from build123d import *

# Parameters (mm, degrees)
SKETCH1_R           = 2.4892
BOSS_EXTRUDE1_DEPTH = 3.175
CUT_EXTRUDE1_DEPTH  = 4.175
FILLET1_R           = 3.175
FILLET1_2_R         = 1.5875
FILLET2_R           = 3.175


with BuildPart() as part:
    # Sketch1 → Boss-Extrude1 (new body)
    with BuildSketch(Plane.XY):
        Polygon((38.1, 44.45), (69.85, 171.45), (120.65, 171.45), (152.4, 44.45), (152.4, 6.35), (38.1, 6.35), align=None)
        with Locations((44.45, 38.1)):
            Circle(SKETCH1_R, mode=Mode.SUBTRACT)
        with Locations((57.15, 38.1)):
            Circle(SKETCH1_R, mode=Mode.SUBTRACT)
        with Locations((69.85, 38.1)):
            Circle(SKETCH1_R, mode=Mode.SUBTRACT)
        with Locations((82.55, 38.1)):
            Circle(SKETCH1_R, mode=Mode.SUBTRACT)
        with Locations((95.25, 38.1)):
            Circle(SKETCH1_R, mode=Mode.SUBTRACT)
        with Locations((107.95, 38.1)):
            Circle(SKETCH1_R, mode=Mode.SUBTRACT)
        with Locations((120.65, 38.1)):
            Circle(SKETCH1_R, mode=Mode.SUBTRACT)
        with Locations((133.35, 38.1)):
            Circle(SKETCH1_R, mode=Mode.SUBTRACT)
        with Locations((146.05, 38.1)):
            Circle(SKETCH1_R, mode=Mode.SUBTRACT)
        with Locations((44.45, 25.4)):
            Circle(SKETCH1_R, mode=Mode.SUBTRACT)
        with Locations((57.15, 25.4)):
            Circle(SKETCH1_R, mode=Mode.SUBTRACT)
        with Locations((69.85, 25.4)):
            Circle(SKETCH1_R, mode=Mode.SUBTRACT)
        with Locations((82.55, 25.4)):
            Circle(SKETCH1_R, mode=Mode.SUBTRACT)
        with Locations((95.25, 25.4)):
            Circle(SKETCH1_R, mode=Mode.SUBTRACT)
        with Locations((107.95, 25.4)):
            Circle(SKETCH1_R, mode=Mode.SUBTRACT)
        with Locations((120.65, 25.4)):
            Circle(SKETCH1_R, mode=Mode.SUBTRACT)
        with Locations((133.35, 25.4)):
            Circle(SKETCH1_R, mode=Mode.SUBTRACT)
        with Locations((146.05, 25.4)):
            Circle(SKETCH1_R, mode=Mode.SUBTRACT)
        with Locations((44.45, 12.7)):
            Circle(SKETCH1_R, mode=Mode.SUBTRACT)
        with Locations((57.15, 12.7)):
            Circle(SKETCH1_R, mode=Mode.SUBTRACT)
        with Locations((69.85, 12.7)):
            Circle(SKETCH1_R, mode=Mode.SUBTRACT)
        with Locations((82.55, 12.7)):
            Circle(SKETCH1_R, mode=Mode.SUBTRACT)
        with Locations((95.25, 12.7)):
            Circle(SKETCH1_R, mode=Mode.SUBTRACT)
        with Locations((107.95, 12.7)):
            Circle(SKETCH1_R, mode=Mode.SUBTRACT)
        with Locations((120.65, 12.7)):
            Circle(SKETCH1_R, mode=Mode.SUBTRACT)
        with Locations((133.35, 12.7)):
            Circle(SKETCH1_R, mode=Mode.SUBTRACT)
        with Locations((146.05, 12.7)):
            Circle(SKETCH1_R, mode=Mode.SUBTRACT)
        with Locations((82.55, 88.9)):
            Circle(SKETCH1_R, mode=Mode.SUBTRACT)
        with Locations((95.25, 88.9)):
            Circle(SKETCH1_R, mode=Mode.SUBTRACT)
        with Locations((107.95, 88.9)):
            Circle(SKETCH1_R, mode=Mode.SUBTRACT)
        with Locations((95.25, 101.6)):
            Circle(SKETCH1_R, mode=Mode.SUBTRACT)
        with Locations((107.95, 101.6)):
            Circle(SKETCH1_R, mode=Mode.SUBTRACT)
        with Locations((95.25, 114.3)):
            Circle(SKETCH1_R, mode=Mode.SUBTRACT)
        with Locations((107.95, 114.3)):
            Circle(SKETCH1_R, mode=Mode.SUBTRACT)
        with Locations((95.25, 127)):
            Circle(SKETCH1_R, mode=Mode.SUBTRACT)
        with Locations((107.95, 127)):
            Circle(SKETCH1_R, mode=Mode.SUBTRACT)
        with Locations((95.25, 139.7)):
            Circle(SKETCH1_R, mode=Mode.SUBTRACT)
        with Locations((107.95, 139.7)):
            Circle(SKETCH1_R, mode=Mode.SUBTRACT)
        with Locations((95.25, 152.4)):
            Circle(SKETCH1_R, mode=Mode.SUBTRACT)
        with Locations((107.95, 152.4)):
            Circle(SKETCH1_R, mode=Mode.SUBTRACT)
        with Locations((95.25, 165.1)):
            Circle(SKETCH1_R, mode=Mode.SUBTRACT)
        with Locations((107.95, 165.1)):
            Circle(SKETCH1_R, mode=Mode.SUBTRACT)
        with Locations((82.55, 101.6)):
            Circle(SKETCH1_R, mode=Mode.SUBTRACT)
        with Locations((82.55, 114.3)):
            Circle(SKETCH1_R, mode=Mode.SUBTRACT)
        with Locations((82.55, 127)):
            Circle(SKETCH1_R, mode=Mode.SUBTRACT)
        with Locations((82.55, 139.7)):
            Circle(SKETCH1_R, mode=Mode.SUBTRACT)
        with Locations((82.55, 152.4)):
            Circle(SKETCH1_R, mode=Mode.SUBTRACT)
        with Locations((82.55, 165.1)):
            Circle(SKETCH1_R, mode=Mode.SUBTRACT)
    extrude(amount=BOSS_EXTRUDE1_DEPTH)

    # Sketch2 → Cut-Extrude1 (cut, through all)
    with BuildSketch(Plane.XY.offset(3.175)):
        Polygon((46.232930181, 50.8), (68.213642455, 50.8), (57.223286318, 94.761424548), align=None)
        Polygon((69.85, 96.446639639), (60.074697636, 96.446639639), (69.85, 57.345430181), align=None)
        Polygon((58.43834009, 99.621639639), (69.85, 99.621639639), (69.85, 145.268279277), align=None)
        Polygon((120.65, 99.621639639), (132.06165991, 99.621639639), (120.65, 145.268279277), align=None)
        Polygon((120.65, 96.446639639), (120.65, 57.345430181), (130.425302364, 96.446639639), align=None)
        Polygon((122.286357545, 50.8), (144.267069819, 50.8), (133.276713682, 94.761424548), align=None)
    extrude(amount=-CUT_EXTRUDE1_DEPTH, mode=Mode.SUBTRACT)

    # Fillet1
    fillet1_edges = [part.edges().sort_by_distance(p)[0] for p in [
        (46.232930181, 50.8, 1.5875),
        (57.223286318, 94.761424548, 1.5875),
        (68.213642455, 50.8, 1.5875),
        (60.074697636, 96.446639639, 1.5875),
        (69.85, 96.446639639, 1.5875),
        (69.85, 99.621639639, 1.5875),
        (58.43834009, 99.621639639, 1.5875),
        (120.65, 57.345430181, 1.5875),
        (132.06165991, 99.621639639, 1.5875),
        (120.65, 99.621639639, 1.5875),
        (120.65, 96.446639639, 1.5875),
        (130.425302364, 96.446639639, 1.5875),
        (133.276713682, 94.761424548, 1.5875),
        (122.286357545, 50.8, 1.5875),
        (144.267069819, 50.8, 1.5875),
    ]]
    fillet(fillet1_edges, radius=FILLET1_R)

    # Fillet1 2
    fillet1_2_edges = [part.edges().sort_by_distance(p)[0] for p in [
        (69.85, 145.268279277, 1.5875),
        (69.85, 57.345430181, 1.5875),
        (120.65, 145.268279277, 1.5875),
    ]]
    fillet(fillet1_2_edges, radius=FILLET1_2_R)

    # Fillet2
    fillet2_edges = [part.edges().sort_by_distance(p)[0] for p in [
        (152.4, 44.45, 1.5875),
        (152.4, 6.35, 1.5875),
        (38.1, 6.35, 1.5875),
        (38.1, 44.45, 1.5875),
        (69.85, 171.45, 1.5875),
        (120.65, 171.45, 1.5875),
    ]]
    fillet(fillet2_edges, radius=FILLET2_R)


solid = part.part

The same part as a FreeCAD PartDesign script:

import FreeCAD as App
import Part
import Sketcher
Q = App.Units.Quantity


def edges_at(feature, points):
    """Names of the edges that pass closest to the given points."""
    edges = feature.Shape.Edges
    near = lambda p: min(range(len(edges)), key=lambda i: edges[i].distToShape(Part.Vertex(*p))[0])
    return sorted({f"Edge{near(p) + 1}" for p in points})

doc = App.newDocument("Part")
params = doc.addObject("Spreadsheet::Sheet", "Params")
for row, (alias, value) in enumerate([
    ("sketch1_width", "2 in"),
    ("sketch1_diameter", "0.196 in"),
    ("sketch1_width2", "4.5 in"),
    ("sketch1_height", "1.5 in"),
    ("pad1_length", "0.125 in"),
    ("fillet_radius", "0.125 in"),
    ("fillet2_radius", "0.0625 in"),
    ("fillet3_radius", "0.125 in"),
], start=1):
    params.set(f"A{row}", alias)
    params.set(f"B{row}", "=" + value)
    params.setAlias(f"B{row}", alias)

body = doc.addObject("PartDesign::Body", "Body")

# Sketch on XY plane
sketch1 = doc.addObject("Sketcher::SketchObject", "Sketch")
body.addObject(sketch1)
sketch1.AttachmentSupport = (doc.XY_Plane, [""])
sketch1.MapMode = "FlatFace"
sketch1.addGeometry([
    Part.LineSegment(App.Vector(69.85, 171.45, 0), App.Vector(38.1, 44.45, 0)),  # 0
    Part.LineSegment(App.Vector(38.1, 44.45, 0), App.Vector(38.1, 6.35, 0)),  # 1
    Part.LineSegment(App.Vector(38.1, 6.35, 0), App.Vector(152.4, 6.35, 0)),  # 2
    Part.LineSegment(App.Vector(152.4, 6.35, 0), App.Vector(152.4, 44.45, 0)),  # 3
    Part.LineSegment(App.Vector(152.4, 44.45, 0), App.Vector(120.65, 171.45, 0)),  # 4
    Part.LineSegment(App.Vector(120.65, 171.45, 0), App.Vector(69.85, 171.45, 0)),  # 5
    Part.Circle(App.Vector(146.05, 12.7, 0), App.Vector(0, 0, 1), 2.4892),  # 6
    Part.Circle(App.Vector(146.05, 25.4, 0), App.Vector(0, 0, 1), 2.4892),  # 7
    Part.Circle(App.Vector(133.35, 12.7, 0), App.Vector(0, 0, 1), 2.4892),  # 8
    Part.Circle(App.Vector(133.35, 25.4, 0), App.Vector(0, 0, 1), 2.4892),  # 9
    Part.Circle(App.Vector(146.05, 38.1, 0), App.Vector(0, 0, 1), 2.4892),  # 10
    Part.Circle(App.Vector(133.35, 38.1, 0), App.Vector(0, 0, 1), 2.4892),  # 11
    Part.Circle(App.Vector(120.65, 12.7, 0), App.Vector(0, 0, 1), 2.4892),  # 12
    Part.Circle(App.Vector(120.65, 25.4, 0), App.Vector(0, 0, 1), 2.4892),  # 13
    Part.Circle(App.Vector(107.95, 12.7, 0), App.Vector(0, 0, 1), 2.4892),  # 14
    Part.Circle(App.Vector(107.95, 25.4, 0), App.Vector(0, 0, 1), 2.4892),  # 15
    Part.Circle(App.Vector(120.65, 38.1, 0), App.Vector(0, 0, 1), 2.4892),  # 16
    Part.Circle(App.Vector(107.95, 38.1, 0), App.Vector(0, 0, 1), 2.4892),  # 17
    Part.Circle(App.Vector(95.25, 12.7, 0), App.Vector(0, 0, 1), 2.4892),  # 18
    Part.Circle(App.Vector(82.55, 12.7, 0), App.Vector(0, 0, 1), 2.4892),  # 19
    Part.Circle(App.Vector(95.25, 25.4, 0), App.Vector(0, 0, 1), 2.4892),  # 20
    Part.Circle(App.Vector(82.55, 25.4, 0), App.Vector(0, 0, 1), 2.4892),  # 21
    Part.Circle(App.Vector(69.85, 12.7, 0), App.Vector(0, 0, 1), 2.4892),  # 22
    Part.Circle(App.Vector(69.85, 25.4, 0), App.Vector(0, 0, 1), 2.4892),  # 23
    Part.Circle(App.Vector(95.25, 38.1, 0), App.Vector(0, 0, 1), 2.4892),  # 24
    Part.Circle(App.Vector(82.55, 38.1, 0), App.Vector(0, 0, 1), 2.4892),  # 25
    Part.Circle(App.Vector(69.85, 38.1, 0), App.Vector(0, 0, 1), 2.4892),  # 26
    Part.Circle(App.Vector(57.15, 12.7, 0), App.Vector(0, 0, 1), 2.4892),  # 27
    Part.Circle(App.Vector(57.15, 25.4, 0), App.Vector(0, 0, 1), 2.4892),  # 28
    Part.Circle(App.Vector(44.45, 12.7, 0), App.Vector(0, 0, 1), 2.4892),  # 29
    Part.Circle(App.Vector(44.45, 25.4, 0), App.Vector(0, 0, 1), 2.4892),  # 30
    Part.Circle(App.Vector(57.15, 38.1, 0), App.Vector(0, 0, 1), 2.4892),  # 31
    Part.Circle(App.Vector(44.45, 38.1, 0), App.Vector(0, 0, 1), 2.4892),  # 32
    Part.Circle(App.Vector(107.95, 88.9, 0), App.Vector(0, 0, 1), 2.4892),  # 33
    Part.Circle(App.Vector(107.95, 101.6, 0), App.Vector(0, 0, 1), 2.4892),  # 34
    Part.Circle(App.Vector(107.95, 114.3, 0), App.Vector(0, 0, 1), 2.4892),  # 35
    Part.Circle(App.Vector(107.95, 127, 0), App.Vector(0, 0, 1), 2.4892),  # 36
    Part.Circle(App.Vector(107.95, 139.7, 0), App.Vector(0, 0, 1), 2.4892),  # 37
    Part.Circle(App.Vector(107.95, 152.4, 0), App.Vector(0, 0, 1), 2.4892),  # 38
    Part.Circle(App.Vector(107.95, 165.1, 0), App.Vector(0, 0, 1), 2.4892),  # 39
    Part.Circle(App.Vector(95.25, 88.9, 0), App.Vector(0, 0, 1), 2.4892),  # 40
    Part.Circle(App.Vector(82.55, 88.9, 0), App.Vector(0, 0, 1), 2.4892),  # 41
    Part.Circle(App.Vector(95.25, 101.6, 0), App.Vector(0, 0, 1), 2.4892),  # 42
    Part.Circle(App.Vector(82.55, 101.6, 0), App.Vector(0, 0, 1), 2.4892),  # 43
    Part.Circle(App.Vector(95.25, 114.3, 0), App.Vector(0, 0, 1), 2.4892),  # 44
    Part.Circle(App.Vector(82.55, 114.3, 0), App.Vector(0, 0, 1), 2.4892),  # 45
    Part.Circle(App.Vector(95.25, 127, 0), App.Vector(0, 0, 1), 2.4892),  # 46
    Part.Circle(App.Vector(82.55, 127, 0), App.Vector(0, 0, 1), 2.4892),  # 47
    Part.Circle(App.Vector(95.25, 139.7, 0), App.Vector(0, 0, 1), 2.4892),  # 48
    Part.Circle(App.Vector(82.55, 139.7, 0), App.Vector(0, 0, 1), 2.4892),  # 49
    Part.Circle(App.Vector(95.25, 152.4, 0), App.Vector(0, 0, 1), 2.4892),  # 50
    Part.Circle(App.Vector(82.55, 152.4, 0), App.Vector(0, 0, 1), 2.4892),  # 51
    Part.Circle(App.Vector(95.25, 165.1, 0), App.Vector(0, 0, 1), 2.4892),  # 52
    Part.Circle(App.Vector(82.55, 165.1, 0), App.Vector(0, 0, 1), 2.4892),  # 53
], False)
sketch1.addConstraint([
    Sketcher.Constraint("Coincident", 0, 2, 1, 1),
    Sketcher.Constraint("Coincident", 1, 2, 2, 1),
    Sketcher.Constraint("Coincident", 2, 2, 3, 1),
    Sketcher.Constraint("Coincident", 3, 2, 4, 1),
    Sketcher.Constraint("Coincident", 4, 2, 5, 1),
    Sketcher.Constraint("Coincident", 5, 2, 0, 1),
    Sketcher.Constraint("Vertical", 1),
    Sketcher.Constraint("Horizontal", 2),
    Sketcher.Constraint("Vertical", 3),
    Sketcher.Constraint("Horizontal", 5),
    Sketcher.Constraint("Equal", 6, 7),
    Sketcher.Constraint("Equal", 7, 8),
    Sketcher.Constraint("Equal", 8, 9),
    Sketcher.Constraint("Equal", 9, 10),
    Sketcher.Constraint("Equal", 10, 11),
    Sketcher.Constraint("Equal", 11, 12),
    Sketcher.Constraint("Equal", 12, 13),
    Sketcher.Constraint("Equal", 13, 14),
    Sketcher.Constraint("Equal", 14, 15),
    Sketcher.Constraint("Equal", 15, 16),
    Sketcher.Constraint("Equal", 16, 17),
    Sketcher.Constraint("Equal", 17, 18),
    Sketcher.Constraint("Equal", 18, 19),
    Sketcher.Constraint("Equal", 19, 20),
    Sketcher.Constraint("Equal", 20, 21),
    Sketcher.Constraint("Equal", 21, 22),
    Sketcher.Constraint("Equal", 22, 23),
    Sketcher.Constraint("Equal", 23, 24),
    Sketcher.Constraint("Equal", 24, 25),
    Sketcher.Constraint("Equal", 25, 26),
    Sketcher.Constraint("Equal", 26, 27),
    Sketcher.Constraint("Equal", 27, 28),
    Sketcher.Constraint("Equal", 28, 29),
    Sketcher.Constraint("Equal", 29, 30),
    Sketcher.Constraint("Equal", 30, 31),
    Sketcher.Constraint("Equal", 31, 32),
    Sketcher.Constraint("Equal", 32, 33),
    Sketcher.Constraint("Equal", 33, 34),
    Sketcher.Constraint("Equal", 34, 35),
    Sketcher.Constraint("Equal", 35, 36),
    Sketcher.Constraint("Equal", 36, 37),
    Sketcher.Constraint("Equal", 37, 38),
    Sketcher.Constraint("Equal", 38, 39),
    Sketcher.Constraint("Equal", 39, 40),
    Sketcher.Constraint("Equal", 40, 41),
    Sketcher.Constraint("Equal", 41, 42),
    Sketcher.Constraint("Equal", 42, 43),
    Sketcher.Constraint("Equal", 43, 44),
    Sketcher.Constraint("Equal", 44, 45),
    Sketcher.Constraint("Equal", 45, 46),
    Sketcher.Constraint("Equal", 46, 47),
    Sketcher.Constraint("Equal", 47, 48),
    Sketcher.Constraint("Equal", 48, 49),
    Sketcher.Constraint("Equal", 49, 50),
    Sketcher.Constraint("Equal", 50, 51),
    Sketcher.Constraint("Equal", 51, 52),
    Sketcher.Constraint("Equal", 52, 53),
    Sketcher.Constraint("Horizontal", 6, 3, 8, 3),
    Sketcher.Constraint("Horizontal", 7, 3, 9, 3),
    Sketcher.Constraint("Horizontal", 10, 3, 11, 3),
    Sketcher.Constraint("Horizontal", 8, 3, 12, 3),
    Sketcher.Constraint("Horizontal", 9, 3, 13, 3),
    Sketcher.Constraint("Horizontal", 12, 3, 14, 3),
    Sketcher.Constraint("Horizontal", 13, 3, 15, 3),
    Sketcher.Constraint("Horizontal", 11, 3, 16, 3),
    Sketcher.Constraint("Horizontal", 16, 3, 17, 3),
    Sketcher.Constraint("Horizontal", 14, 3, 18, 3),
    Sketcher.Constraint("Horizontal", 18, 3, 19, 3),
    Sketcher.Constraint("Horizontal", 15, 3, 20, 3),
    Sketcher.Constraint("Horizontal", 20, 3, 21, 3),
    Sketcher.Constraint("Horizontal", 19, 3, 22, 3),
    Sketcher.Constraint("Horizontal", 21, 3, 23, 3),
    Sketcher.Constraint("Horizontal", 17, 3, 24, 3),
    Sketcher.Constraint("Horizontal", 24, 3, 25, 3),
    Sketcher.Constraint("Horizontal", 25, 3, 26, 3),
    Sketcher.Constraint("Horizontal", 22, 3, 27, 3),
    Sketcher.Constraint("Horizontal", 23, 3, 28, 3),
    Sketcher.Constraint("Horizontal", 27, 3, 29, 3),
    Sketcher.Constraint("Horizontal", 28, 3, 30, 3),
    Sketcher.Constraint("Horizontal", 26, 3, 31, 3),
    Sketcher.Constraint("Horizontal", 31, 3, 32, 3),
    Sketcher.Constraint("Horizontal", 33, 3, 40, 3),
    Sketcher.Constraint("Horizontal", 40, 3, 41, 3),
    Sketcher.Constraint("Horizontal", 34, 3, 42, 3),
    Sketcher.Constraint("Horizontal", 42, 3, 43, 3),
    Sketcher.Constraint("Horizontal", 35, 3, 44, 3),
    Sketcher.Constraint("Horizontal", 44, 3, 45, 3),
    Sketcher.Constraint("Horizontal", 36, 3, 46, 3),
    Sketcher.Constraint("Horizontal", 46, 3, 47, 3),
    Sketcher.Constraint("Horizontal", 37, 3, 48, 3),
    Sketcher.Constraint("Horizontal", 48, 3, 49, 3),
    Sketcher.Constraint("Horizontal", 38, 3, 50, 3),
    Sketcher.Constraint("Horizontal", 50, 3, 51, 3),
    Sketcher.Constraint("Horizontal", 39, 3, 52, 3),
    Sketcher.Constraint("Horizontal", 52, 3, 53, 3),
    Sketcher.Constraint("Horizontal", 0, 2, 3, 2),
    Sketcher.Constraint("Vertical", 6, 3, 7, 3),
    Sketcher.Constraint("Vertical", 8, 3, 9, 3),
    Sketcher.Constraint("Vertical", 7, 3, 10, 3),
    Sketcher.Constraint("Vertical", 9, 3, 11, 3),
    Sketcher.Constraint("Vertical", 12, 3, 13, 3),
    Sketcher.Constraint("Vertical", 14, 3, 15, 3),
    Sketcher.Constraint("Vertical", 13, 3, 16, 3),
    Sketcher.Constraint("Vertical", 15, 3, 17, 3),
    Sketcher.Constraint("Vertical", 18, 3, 20, 3),
    Sketcher.Constraint("Vertical", 19, 3, 21, 3),
    Sketcher.Constraint("Vertical", 22, 3, 23, 3),
    Sketcher.Constraint("Vertical", 20, 3, 24, 3),
    Sketcher.Constraint("Vertical", 21, 3, 25, 3),
    Sketcher.Constraint("Vertical", 23, 3, 26, 3),
    Sketcher.Constraint("Vertical", 27, 3, 28, 3),
    Sketcher.Constraint("Vertical", 29, 3, 30, 3),
    Sketcher.Constraint("Vertical", 28, 3, 31, 3),
    Sketcher.Constraint("Vertical", 30, 3, 32, 3),
    Sketcher.Constraint("Vertical", 17, 3, 33, 3),
    Sketcher.Constraint("Vertical", 33, 3, 34, 3),
    Sketcher.Constraint("Vertical", 34, 3, 35, 3),
    Sketcher.Constraint("Vertical", 35, 3, 36, 3),
    Sketcher.Constraint("Vertical", 36, 3, 37, 3),
    Sketcher.Constraint("Vertical", 37, 3, 38, 3),
    Sketcher.Constraint("Vertical", 38, 3, 39, 3),
    Sketcher.Constraint("Vertical", 24, 3, 40, 3),
    Sketcher.Constraint("Vertical", 25, 3, 41, 3),
    Sketcher.Constraint("Vertical", 40, 3, 42, 3),
    Sketcher.Constraint("Vertical", 41, 3, 43, 3),
    Sketcher.Constraint("Vertical", 42, 3, 44, 3),
    Sketcher.Constraint("Vertical", 43, 3, 45, 3),
    Sketcher.Constraint("Vertical", 44, 3, 46, 3),
    Sketcher.Constraint("Vertical", 45, 3, 47, 3),
    Sketcher.Constraint("Vertical", 46, 3, 48, 3),
    Sketcher.Constraint("Vertical", 47, 3, 49, 3),
    Sketcher.Constraint("Vertical", 48, 3, 50, 3),
    Sketcher.Constraint("Vertical", 49, 3, 51, 3),
    Sketcher.Constraint("Vertical", 50, 3, 52, 3),
    Sketcher.Constraint("Vertical", 51, 3, 53, 3),
    Sketcher.Constraint("Vertical", 16, 3, 4, 2),
    Sketcher.Constraint("Vertical", 26, 3, 5, 2),
    Sketcher.Constraint("Equal", 0, 4),
    Sketcher.Constraint("DistanceX", 5, 2, 5, 1, Q("2 in")),
    Sketcher.Constraint("Diameter", 6, Q("0.196 in")),
    Sketcher.Constraint("DistanceX", 2, 1, 2, 2, Q("4.5 in")),
    Sketcher.Constraint("DistanceY", 1, 2, 1, 1, Q("1.5 in")),
    Sketcher.Constraint("DistanceY", -1, 1, 7, 3, Q("1 in")),
    Sketcher.Constraint("DistanceY", -1, 1, 34, 3, Q("4 in")),
    Sketcher.Constraint("DistanceY", -1, 1, 36, 3, Q("5 in")),
    Sketcher.Constraint("DistanceY", -1, 1, 38, 3, Q("6 in")),
    Sketcher.Constraint("DistanceX", -1, 1, 2, 2, Q("6 in")),
    Sketcher.Constraint("DistanceY", 6, 3, 10, 3, Q("1 in")),
    Sketcher.Constraint("DistanceX", 12, 3, 6, 3, Q("1 in")),
    Sketcher.Constraint("DistanceX", 14, 3, 8, 3, Q("1 in")),
    Sketcher.Constraint("DistanceX", 18, 3, 12, 3, Q("1 in")),
    Sketcher.Constraint("DistanceX", 19, 3, 14, 3, Q("1 in")),
    Sketcher.Constraint("DistanceX", 27, 3, 19, 3, Q("1 in")),
    Sketcher.Constraint("DistanceX", 29, 3, 22, 3, Q("1 in")),
    Sketcher.Constraint("DistanceY", 17, 3, 33, 3, Q("2 in")),
    Sketcher.Constraint("DistanceY", 33, 3, 35, 3, Q("1 in")),
    Sketcher.Constraint("DistanceY", 35, 3, 37, 3, Q("1 in")),
    Sketcher.Constraint("DistanceY", 37, 3, 39, 3, Q("1 in")),
    Sketcher.Constraint("DistanceY", -1, 1, 6, 3, Q("0.5 in")),
    Sketcher.Constraint("DistanceX", 8, 3, 6, 3, Q("0.5 in")),
    Sketcher.Constraint("DistanceY", -1, 1, 0, 2, Q("1.75 in")),
    Sketcher.Constraint("DistanceY", -1, 1, 4, 2, Q("6.75 in")),
])
sketch1.setExpression("Constraints[138]", "Params.sketch1_width")
sketch1.setExpression("Constraints[139]", "Params.sketch1_diameter")
sketch1.setExpression("Constraints[140]", "Params.sketch1_width2")
sketch1.setExpression("Constraints[141]", "Params.sketch1_height")
pad1 = doc.addObject("PartDesign::Pad", "Pad")
body.addObject(pad1)
pad1.Profile = sketch1
pad1.setExpression("Length", "Params.pad1_length")

# Sketch on XY plane
sketch2 = doc.addObject("Sketcher::SketchObject", "Sketch001")
body.addObject(sketch2)
sketch2.AttachmentSupport = (doc.XY_Plane, [""])
sketch2.MapMode = "FlatFace"
sketch2.AttachmentOffset = App.Placement(App.Vector(0, 0, 0.125 * 25.4), App.Rotation())
sketch2.addGeometry([
    Part.LineSegment(App.Vector(46.23293, 50.8, 0), App.Vector(68.213642, 50.8, 0)),  # 0
    Part.LineSegment(App.Vector(68.213642, 50.8, 0), App.Vector(57.223286, 94.761425, 0)),  # 1
    Part.LineSegment(App.Vector(57.223286, 94.761425, 0), App.Vector(46.23293, 50.8, 0)),  # 2
    Part.LineSegment(App.Vector(69.85, 96.44664, 0), App.Vector(60.074698, 96.44664, 0)),  # 3
    Part.LineSegment(App.Vector(60.074698, 96.44664, 0), App.Vector(69.85, 57.34543, 0)),  # 4
    Part.LineSegment(App.Vector(69.85, 57.34543, 0), App.Vector(69.85, 96.44664, 0)),  # 5
    Part.LineSegment(App.Vector(58.43834, 99.62164, 0), App.Vector(69.85, 99.62164, 0)),  # 6
    Part.LineSegment(App.Vector(69.85, 99.62164, 0), App.Vector(69.85, 145.268279, 0)),  # 7
    Part.LineSegment(App.Vector(69.85, 145.268279, 0), App.Vector(58.43834, 99.62164, 0)),  # 8
    Part.LineSegment(App.Vector(120.65, 99.62164, 0), App.Vector(132.06166, 99.62164, 0)),  # 9
    Part.LineSegment(App.Vector(132.06166, 99.62164, 0), App.Vector(120.65, 145.268279, 0)),  # 10
    Part.LineSegment(App.Vector(120.65, 145.268279, 0), App.Vector(120.65, 99.62164, 0)),  # 11
    Part.LineSegment(App.Vector(120.65, 96.44664, 0), App.Vector(120.65, 57.34543, 0)),  # 12
    Part.LineSegment(App.Vector(120.65, 57.34543, 0), App.Vector(130.425302, 96.44664, 0)),  # 13
    Part.LineSegment(App.Vector(130.425302, 96.44664, 0), App.Vector(120.65, 96.44664, 0)),  # 14
    Part.LineSegment(App.Vector(122.286358, 50.8, 0), App.Vector(144.26707, 50.8, 0)),  # 15
    Part.LineSegment(App.Vector(144.26707, 50.8, 0), App.Vector(133.276714, 94.761425, 0)),  # 16
    Part.LineSegment(App.Vector(133.276714, 94.761425, 0), App.Vector(122.286358, 50.8, 0)),  # 17
], False)
sketch2.addConstraint([
    Sketcher.Constraint("Coincident", 0, 2, 1, 1),
    Sketcher.Constraint("Coincident", 1, 2, 2, 1),
    Sketcher.Constraint("Coincident", 2, 2, 0, 1),
    Sketcher.Constraint("Coincident", 3, 2, 4, 1),
    Sketcher.Constraint("Coincident", 4, 2, 5, 1),
    Sketcher.Constraint("Coincident", 5, 2, 3, 1),
    Sketcher.Constraint("Coincident", 6, 2, 7, 1),
    Sketcher.Constraint("Coincident", 7, 2, 8, 1),
    Sketcher.Constraint("Coincident", 8, 2, 6, 1),
    Sketcher.Constraint("Coincident", 9, 2, 10, 1),
    Sketcher.Constraint("Coincident", 10, 2, 11, 1),
    Sketcher.Constraint("Coincident", 11, 2, 9, 1),
    Sketcher.Constraint("Coincident", 12, 2, 13, 1),
    Sketcher.Constraint("Coincident", 13, 2, 14, 1),
    Sketcher.Constraint("Coincident", 14, 2, 12, 1),
    Sketcher.Constraint("Coincident", 15, 2, 16, 1),
    Sketcher.Constraint("Coincident", 16, 2, 17, 1),
    Sketcher.Constraint("Coincident", 17, 2, 15, 1),
    Sketcher.Constraint("Horizontal", 0),
    Sketcher.Constraint("Horizontal", 3),
    Sketcher.Constraint("Vertical", 5),
    Sketcher.Constraint("Horizontal", 6),
    Sketcher.Constraint("Vertical", 7),
    Sketcher.Constraint("Horizontal", 9),
    Sketcher.Constraint("Vertical", 11),
    Sketcher.Constraint("Vertical", 12),
    Sketcher.Constraint("Horizontal", 14),
    Sketcher.Constraint("Horizontal", 15),
    Sketcher.Constraint("Parallel", 1, 4),
    Sketcher.Constraint("Parallel", 2, 8),
    Sketcher.Constraint("Parallel", 4, 10),
    Sketcher.Constraint("Parallel", 8, 13),
    Sketcher.Constraint("Parallel", 10, 16),
    Sketcher.Constraint("Parallel", 13, 17),
    Sketcher.Constraint("Horizontal", 8, 2, 9, 2),
    Sketcher.Constraint("Horizontal", 7, 2, 10, 2),
    Sketcher.Constraint("Horizontal", 4, 2, 12, 2),
    Sketcher.Constraint("Horizontal", 5, 2, 13, 2),
    Sketcher.Constraint("Horizontal", 2, 2, 15, 2),
    Sketcher.Constraint("Horizontal", 1, 2, 16, 2),
    Sketcher.Constraint("Vertical", 5, 2, 6, 2),
    Sketcher.Constraint("Vertical", 11, 2, 12, 2),
    Sketcher.Constraint("Equal", 6, 9),
    Sketcher.Constraint("DistanceY", -1, 1, 0, 2, Q("2 in")),
    Sketcher.Constraint("DistanceX", 7, 2, 10, 2, Q("2 in")),
    Sketcher.Constraint("DistanceX", -1, 1, 4, 2, Q("2.75 in")),
    Sketcher.Constraint("DistanceY", 5, 2, 6, 2, Q("0.125 in")),
    Sketcher.Constraint("Distance", 1, Q("45.314399 mm")),
    Sketcher.Constraint("DistanceX", 6, 1, 6, 2, Q("11.41166 mm")),
    Sketcher.Constraint("DistanceY", 5, 1, 5, 2, Q("39.101209 mm")),
    Sketcher.Constraint("DistanceY", 7, 1, 7, 2, Q("45.64664 mm")),
    Sketcher.Constraint("DistanceX", -1, 1, 2, 2, Q("46.23293 mm")),
    Sketcher.Constraint("DistanceY", -1, 1, 3, 2, Q("96.44664 mm")),
    Sketcher.Constraint("DistanceX", -1, 1, 15, 2, Q("144.26707 mm")),
])
pocket1 = doc.addObject("PartDesign::Pocket", "Pocket")
body.addObject(pocket1)
pocket1.Profile = sketch2
pocket1.Type = "ThroughAll"
doc.recompute()

fillet = doc.addObject("PartDesign::Fillet", "Fillet")
body.addObject(fillet)
fillet.Base = (pocket1, edges_at(pocket1, [
    (46.233, 50.8, 1.587),
    (57.223, 94.761, 1.587),
    (68.214, 50.8, 1.587),
    (60.075, 96.447, 1.587),
    (69.85, 96.447, 1.587),
    (69.85, 99.622, 1.587),
    (58.438, 99.622, 1.587),
    (120.65, 57.345, 1.587),
    (132.062, 99.622, 1.587),
    (120.65, 99.622, 1.587),
    (120.65, 96.447, 1.587),
    (130.425, 96.447, 1.587),
    (133.277, 94.761, 1.587),
    (122.286, 50.8, 1.587),
    (144.267, 50.8, 1.587),
]))
fillet.setExpression("Radius", "Params.fillet_radius")
doc.recompute()

fillet2 = doc.addObject("PartDesign::Fillet", "Fillet001")
body.addObject(fillet2)
fillet2.Base = (fillet, edges_at(fillet, [(69.85, 145.268, 1.587), (69.85, 57.345, 1.587), (120.65, 145.268, 1.587)]))
fillet2.setExpression("Radius", "Params.fillet2_radius")
doc.recompute()

fillet3 = doc.addObject("PartDesign::Fillet", "Fillet002")
body.addObject(fillet3)
fillet3.Base = (fillet2, edges_at(fillet2, [
    (152.4, 44.45, 1.587),
    (152.4, 6.35, 1.587),
    (38.1, 6.35, 1.587),
    (38.1, 44.45, 1.587),
    (69.85, 171.45, 1.587),
    (120.65, 171.45, 1.587),
]))
fillet3.setExpression("Radius", "Params.fillet3_radius")

doc.recompute()
